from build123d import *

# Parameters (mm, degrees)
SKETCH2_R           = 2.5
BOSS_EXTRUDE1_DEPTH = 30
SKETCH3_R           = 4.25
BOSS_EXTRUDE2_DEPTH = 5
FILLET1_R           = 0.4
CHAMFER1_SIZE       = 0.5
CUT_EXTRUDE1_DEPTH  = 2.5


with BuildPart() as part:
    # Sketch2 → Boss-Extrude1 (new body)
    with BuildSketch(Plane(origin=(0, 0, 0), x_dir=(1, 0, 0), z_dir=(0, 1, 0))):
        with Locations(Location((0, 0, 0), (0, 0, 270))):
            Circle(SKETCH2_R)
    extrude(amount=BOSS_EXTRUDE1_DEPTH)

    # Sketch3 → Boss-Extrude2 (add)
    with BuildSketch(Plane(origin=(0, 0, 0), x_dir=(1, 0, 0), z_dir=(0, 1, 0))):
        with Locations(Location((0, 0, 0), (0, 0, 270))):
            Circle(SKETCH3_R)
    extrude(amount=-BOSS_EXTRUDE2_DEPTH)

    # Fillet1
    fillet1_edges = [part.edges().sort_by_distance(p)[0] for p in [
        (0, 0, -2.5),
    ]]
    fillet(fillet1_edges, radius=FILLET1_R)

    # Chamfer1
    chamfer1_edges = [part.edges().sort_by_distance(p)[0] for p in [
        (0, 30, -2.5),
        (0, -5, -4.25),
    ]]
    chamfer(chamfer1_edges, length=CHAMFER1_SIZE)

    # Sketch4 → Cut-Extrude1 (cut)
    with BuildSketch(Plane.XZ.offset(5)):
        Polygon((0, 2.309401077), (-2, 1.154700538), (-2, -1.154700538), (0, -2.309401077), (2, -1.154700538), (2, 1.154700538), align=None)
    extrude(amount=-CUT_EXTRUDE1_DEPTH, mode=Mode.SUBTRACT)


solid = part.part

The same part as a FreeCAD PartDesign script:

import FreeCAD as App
import Part
import Sketcher
Q = App.Units.Quantity


def edges_at(feature, points):
    """Names of the edges that pass closest to the given points."""
    edges = feature.Shape.Edges
    near = lambda p: min(range(len(edges)), key=lambda i: edges[i].distToShape(Part.Vertex(*p))[0])
    return sorted({f"Edge{near(p) + 1}" for p in points})

doc = App.newDocument("Part")
params = doc.addObject("Spreadsheet::Sheet", "Params")
for row, (alias, value) in enumerate([
    ("sketch1_diameter", "5 mm"),
    ("pad1_length", "30 mm"),
    ("sketch2_diameter", "8.5 mm"),
    ("pad2_length", "5 mm"),
    ("fillet_radius", "0.4 mm"),
    ("chamfer_size", "0.5 mm"),
    ("pocket1_length", "2.5 mm"),
], start=1):
    params.set(f"A{row}", alias)
    params.set(f"B{row}", "=" + value)
    params.setAlias(f"B{row}", alias)

body = doc.addObject("PartDesign::Body", "Body")

# Sketch on XZ plane
sketch1 = body.newObject("Sketcher::SketchObject", "Sketch")
sketch1.AttachmentSupport = (doc.getObject("XZ_Plane"), [""])
sketch1.MapMode = "FlatFace"
sketch1.addGeometry(Part.Circle(App.Vector(0, 0, 0), App.Vector(0, 0, 1), 2.5), False)
sketch1.addConstraint(Sketcher.Constraint("Coincident", 0, 3, -1, 1))
sketch1.addConstraint(Sketcher.Constraint("Diameter", 0, 5.0))
sketch1.setExpression("Constraints[1]", "Params.sketch1_diameter")
pad1 = body.newObject("PartDesign::Pad", "Pad")
pad1.Profile = sketch1
pad1.setExpression("Length", "Params.pad1_length")
pad1.Reversed = True

# Sketch on XZ plane
sketch2 = body.newObject("Sketcher::SketchObject", "Sketch001")
sketch2.AttachmentSupport = (doc.getObject("XZ_Plane"), [""])
sketch2.MapMode = "FlatFace"
sketch2.addGeometry(Part.Circle(App.Vector(0, 0, 0), App.Vector(0, 0, 1), 4.2), False)
sketch2.addConstraint(Sketcher.Constraint("Coincident", 0, 3, -1, 1))
sketch2.addConstraint(Sketcher.Constraint("Diameter", 0, 8.5))
sketch2.setExpression("Constraints[1]", "Params.sketch2_diameter")
pad2 = body.newObject("PartDesign::Pad", "Pad001")
pad2.Profile = sketch2
pad2.setExpression("Length", "Params.pad2_length")
doc.recompute()

fillet = body.newObject("PartDesign::Fillet", "Fillet")
fillet.Base = (pad2, edges_at(pad2, [(0, 0, -2.5)]))
fillet.setExpression("Radius", "Params.fillet_radius")
doc.recompute()

chamfer = body.newObject("PartDesign::Chamfer", "Chamfer")
chamfer.Base = (fillet, edges_at(fillet, [(0, 30, -2.5), (0, -5, -4.25)]))
chamfer.setExpression("Size", "Params.chamfer_size")

# Sketch on XZ plane
sketch3 = body.newObject("Sketcher::SketchObject", "Sketch002")
sketch3.AttachmentSupport = (doc.getObject("XZ_Plane"), [""])
sketch3.MapMode = "FlatFace"
sketch3.AttachmentOffset = App.Placement(App.Vector(0, 0, 5), App.Rotation())
sketch3.addGeometry(Part.LineSegment(App.Vector(0, 2.3, 0), App.Vector(-2, 1.2, 0)), False)
sketch3.addGeometry(Part.LineSegment(App.Vector(-2, 1.2, 0), App.Vector(-2, -1.2, 0)), False)
sketch3.addGeometry(Part.LineSegment(App.Vector(-2, -1.2, 0), App.Vector(0, -2.3, 0)), False)
sketch3.addGeometry(Part.LineSegment(App.Vector(0, -2.3, 0), App.Vector(2, -1.2, 0)), False)
sketch3.addGeometry(Part.LineSegment(App.Vector(2, -1.2, 0), App.Vector(2, 1.2, 0)), False)
sketch3.addGeometry(Part.LineSegment(App.Vector(2, 1.2, 0), App.Vector(0, 2.3, 0)), False)
sketch3.addConstraint(Sketcher.Constraint("Coincident", 0, 2, 1, 1))
sketch3.addConstraint(Sketcher.Constraint("Coincident", 1, 2, 2, 1))
sketch3.addConstraint(Sketcher.Constraint("Coincident", 2, 2, 3, 1))
sketch3.addConstraint(Sketcher.Constraint("Coincident", 3, 2, 4, 1))
sketch3.addConstraint(Sketcher.Constraint("Coincident", 4, 2, 5, 1))
sketch3.addConstraint(Sketcher.Constraint("Coincident", 5, 2, 0, 1))
sketch3.addConstraint(Sketcher.Constraint("Vertical", 1))
sketch3.addConstraint(Sketcher.Constraint("Vertical", 4))
sketch3.addConstraint(Sketcher.Constraint("Symmetric", 0, 2, 3, 2, -1, 1))
sketch3.addConstraint(Sketcher.Constraint("Symmetric", 2, 2, 5, 2, -1, 1))
sketch3.addConstraint(Sketcher.Constraint("PointOnObject", 2, 2, -2))
sketch3.addConstraint(Sketcher.Constraint("Parallel", 2, 5))
sketch3.addConstraint(Sketcher.Constraint("Horizontal", 1, 2, 3, 2))
sketch3.addConstraint(Sketcher.Constraint("Angle", 0, Q("-150 deg")))
sketch3.addConstraint(Sketcher.Constraint("DistanceX", 0, 2, -1, 1, 2.0))
sketch3.addConstraint(Sketcher.Constraint("DistanceY", 1, 2, 1, 1, 2.309401))
pocket1 = body.newObject("PartDesign::Pocket", "Pocket")
pocket1.Profile = sketch3
pocket1.setExpression("Length", "Params.pocket1_length")

doc.recompute()
